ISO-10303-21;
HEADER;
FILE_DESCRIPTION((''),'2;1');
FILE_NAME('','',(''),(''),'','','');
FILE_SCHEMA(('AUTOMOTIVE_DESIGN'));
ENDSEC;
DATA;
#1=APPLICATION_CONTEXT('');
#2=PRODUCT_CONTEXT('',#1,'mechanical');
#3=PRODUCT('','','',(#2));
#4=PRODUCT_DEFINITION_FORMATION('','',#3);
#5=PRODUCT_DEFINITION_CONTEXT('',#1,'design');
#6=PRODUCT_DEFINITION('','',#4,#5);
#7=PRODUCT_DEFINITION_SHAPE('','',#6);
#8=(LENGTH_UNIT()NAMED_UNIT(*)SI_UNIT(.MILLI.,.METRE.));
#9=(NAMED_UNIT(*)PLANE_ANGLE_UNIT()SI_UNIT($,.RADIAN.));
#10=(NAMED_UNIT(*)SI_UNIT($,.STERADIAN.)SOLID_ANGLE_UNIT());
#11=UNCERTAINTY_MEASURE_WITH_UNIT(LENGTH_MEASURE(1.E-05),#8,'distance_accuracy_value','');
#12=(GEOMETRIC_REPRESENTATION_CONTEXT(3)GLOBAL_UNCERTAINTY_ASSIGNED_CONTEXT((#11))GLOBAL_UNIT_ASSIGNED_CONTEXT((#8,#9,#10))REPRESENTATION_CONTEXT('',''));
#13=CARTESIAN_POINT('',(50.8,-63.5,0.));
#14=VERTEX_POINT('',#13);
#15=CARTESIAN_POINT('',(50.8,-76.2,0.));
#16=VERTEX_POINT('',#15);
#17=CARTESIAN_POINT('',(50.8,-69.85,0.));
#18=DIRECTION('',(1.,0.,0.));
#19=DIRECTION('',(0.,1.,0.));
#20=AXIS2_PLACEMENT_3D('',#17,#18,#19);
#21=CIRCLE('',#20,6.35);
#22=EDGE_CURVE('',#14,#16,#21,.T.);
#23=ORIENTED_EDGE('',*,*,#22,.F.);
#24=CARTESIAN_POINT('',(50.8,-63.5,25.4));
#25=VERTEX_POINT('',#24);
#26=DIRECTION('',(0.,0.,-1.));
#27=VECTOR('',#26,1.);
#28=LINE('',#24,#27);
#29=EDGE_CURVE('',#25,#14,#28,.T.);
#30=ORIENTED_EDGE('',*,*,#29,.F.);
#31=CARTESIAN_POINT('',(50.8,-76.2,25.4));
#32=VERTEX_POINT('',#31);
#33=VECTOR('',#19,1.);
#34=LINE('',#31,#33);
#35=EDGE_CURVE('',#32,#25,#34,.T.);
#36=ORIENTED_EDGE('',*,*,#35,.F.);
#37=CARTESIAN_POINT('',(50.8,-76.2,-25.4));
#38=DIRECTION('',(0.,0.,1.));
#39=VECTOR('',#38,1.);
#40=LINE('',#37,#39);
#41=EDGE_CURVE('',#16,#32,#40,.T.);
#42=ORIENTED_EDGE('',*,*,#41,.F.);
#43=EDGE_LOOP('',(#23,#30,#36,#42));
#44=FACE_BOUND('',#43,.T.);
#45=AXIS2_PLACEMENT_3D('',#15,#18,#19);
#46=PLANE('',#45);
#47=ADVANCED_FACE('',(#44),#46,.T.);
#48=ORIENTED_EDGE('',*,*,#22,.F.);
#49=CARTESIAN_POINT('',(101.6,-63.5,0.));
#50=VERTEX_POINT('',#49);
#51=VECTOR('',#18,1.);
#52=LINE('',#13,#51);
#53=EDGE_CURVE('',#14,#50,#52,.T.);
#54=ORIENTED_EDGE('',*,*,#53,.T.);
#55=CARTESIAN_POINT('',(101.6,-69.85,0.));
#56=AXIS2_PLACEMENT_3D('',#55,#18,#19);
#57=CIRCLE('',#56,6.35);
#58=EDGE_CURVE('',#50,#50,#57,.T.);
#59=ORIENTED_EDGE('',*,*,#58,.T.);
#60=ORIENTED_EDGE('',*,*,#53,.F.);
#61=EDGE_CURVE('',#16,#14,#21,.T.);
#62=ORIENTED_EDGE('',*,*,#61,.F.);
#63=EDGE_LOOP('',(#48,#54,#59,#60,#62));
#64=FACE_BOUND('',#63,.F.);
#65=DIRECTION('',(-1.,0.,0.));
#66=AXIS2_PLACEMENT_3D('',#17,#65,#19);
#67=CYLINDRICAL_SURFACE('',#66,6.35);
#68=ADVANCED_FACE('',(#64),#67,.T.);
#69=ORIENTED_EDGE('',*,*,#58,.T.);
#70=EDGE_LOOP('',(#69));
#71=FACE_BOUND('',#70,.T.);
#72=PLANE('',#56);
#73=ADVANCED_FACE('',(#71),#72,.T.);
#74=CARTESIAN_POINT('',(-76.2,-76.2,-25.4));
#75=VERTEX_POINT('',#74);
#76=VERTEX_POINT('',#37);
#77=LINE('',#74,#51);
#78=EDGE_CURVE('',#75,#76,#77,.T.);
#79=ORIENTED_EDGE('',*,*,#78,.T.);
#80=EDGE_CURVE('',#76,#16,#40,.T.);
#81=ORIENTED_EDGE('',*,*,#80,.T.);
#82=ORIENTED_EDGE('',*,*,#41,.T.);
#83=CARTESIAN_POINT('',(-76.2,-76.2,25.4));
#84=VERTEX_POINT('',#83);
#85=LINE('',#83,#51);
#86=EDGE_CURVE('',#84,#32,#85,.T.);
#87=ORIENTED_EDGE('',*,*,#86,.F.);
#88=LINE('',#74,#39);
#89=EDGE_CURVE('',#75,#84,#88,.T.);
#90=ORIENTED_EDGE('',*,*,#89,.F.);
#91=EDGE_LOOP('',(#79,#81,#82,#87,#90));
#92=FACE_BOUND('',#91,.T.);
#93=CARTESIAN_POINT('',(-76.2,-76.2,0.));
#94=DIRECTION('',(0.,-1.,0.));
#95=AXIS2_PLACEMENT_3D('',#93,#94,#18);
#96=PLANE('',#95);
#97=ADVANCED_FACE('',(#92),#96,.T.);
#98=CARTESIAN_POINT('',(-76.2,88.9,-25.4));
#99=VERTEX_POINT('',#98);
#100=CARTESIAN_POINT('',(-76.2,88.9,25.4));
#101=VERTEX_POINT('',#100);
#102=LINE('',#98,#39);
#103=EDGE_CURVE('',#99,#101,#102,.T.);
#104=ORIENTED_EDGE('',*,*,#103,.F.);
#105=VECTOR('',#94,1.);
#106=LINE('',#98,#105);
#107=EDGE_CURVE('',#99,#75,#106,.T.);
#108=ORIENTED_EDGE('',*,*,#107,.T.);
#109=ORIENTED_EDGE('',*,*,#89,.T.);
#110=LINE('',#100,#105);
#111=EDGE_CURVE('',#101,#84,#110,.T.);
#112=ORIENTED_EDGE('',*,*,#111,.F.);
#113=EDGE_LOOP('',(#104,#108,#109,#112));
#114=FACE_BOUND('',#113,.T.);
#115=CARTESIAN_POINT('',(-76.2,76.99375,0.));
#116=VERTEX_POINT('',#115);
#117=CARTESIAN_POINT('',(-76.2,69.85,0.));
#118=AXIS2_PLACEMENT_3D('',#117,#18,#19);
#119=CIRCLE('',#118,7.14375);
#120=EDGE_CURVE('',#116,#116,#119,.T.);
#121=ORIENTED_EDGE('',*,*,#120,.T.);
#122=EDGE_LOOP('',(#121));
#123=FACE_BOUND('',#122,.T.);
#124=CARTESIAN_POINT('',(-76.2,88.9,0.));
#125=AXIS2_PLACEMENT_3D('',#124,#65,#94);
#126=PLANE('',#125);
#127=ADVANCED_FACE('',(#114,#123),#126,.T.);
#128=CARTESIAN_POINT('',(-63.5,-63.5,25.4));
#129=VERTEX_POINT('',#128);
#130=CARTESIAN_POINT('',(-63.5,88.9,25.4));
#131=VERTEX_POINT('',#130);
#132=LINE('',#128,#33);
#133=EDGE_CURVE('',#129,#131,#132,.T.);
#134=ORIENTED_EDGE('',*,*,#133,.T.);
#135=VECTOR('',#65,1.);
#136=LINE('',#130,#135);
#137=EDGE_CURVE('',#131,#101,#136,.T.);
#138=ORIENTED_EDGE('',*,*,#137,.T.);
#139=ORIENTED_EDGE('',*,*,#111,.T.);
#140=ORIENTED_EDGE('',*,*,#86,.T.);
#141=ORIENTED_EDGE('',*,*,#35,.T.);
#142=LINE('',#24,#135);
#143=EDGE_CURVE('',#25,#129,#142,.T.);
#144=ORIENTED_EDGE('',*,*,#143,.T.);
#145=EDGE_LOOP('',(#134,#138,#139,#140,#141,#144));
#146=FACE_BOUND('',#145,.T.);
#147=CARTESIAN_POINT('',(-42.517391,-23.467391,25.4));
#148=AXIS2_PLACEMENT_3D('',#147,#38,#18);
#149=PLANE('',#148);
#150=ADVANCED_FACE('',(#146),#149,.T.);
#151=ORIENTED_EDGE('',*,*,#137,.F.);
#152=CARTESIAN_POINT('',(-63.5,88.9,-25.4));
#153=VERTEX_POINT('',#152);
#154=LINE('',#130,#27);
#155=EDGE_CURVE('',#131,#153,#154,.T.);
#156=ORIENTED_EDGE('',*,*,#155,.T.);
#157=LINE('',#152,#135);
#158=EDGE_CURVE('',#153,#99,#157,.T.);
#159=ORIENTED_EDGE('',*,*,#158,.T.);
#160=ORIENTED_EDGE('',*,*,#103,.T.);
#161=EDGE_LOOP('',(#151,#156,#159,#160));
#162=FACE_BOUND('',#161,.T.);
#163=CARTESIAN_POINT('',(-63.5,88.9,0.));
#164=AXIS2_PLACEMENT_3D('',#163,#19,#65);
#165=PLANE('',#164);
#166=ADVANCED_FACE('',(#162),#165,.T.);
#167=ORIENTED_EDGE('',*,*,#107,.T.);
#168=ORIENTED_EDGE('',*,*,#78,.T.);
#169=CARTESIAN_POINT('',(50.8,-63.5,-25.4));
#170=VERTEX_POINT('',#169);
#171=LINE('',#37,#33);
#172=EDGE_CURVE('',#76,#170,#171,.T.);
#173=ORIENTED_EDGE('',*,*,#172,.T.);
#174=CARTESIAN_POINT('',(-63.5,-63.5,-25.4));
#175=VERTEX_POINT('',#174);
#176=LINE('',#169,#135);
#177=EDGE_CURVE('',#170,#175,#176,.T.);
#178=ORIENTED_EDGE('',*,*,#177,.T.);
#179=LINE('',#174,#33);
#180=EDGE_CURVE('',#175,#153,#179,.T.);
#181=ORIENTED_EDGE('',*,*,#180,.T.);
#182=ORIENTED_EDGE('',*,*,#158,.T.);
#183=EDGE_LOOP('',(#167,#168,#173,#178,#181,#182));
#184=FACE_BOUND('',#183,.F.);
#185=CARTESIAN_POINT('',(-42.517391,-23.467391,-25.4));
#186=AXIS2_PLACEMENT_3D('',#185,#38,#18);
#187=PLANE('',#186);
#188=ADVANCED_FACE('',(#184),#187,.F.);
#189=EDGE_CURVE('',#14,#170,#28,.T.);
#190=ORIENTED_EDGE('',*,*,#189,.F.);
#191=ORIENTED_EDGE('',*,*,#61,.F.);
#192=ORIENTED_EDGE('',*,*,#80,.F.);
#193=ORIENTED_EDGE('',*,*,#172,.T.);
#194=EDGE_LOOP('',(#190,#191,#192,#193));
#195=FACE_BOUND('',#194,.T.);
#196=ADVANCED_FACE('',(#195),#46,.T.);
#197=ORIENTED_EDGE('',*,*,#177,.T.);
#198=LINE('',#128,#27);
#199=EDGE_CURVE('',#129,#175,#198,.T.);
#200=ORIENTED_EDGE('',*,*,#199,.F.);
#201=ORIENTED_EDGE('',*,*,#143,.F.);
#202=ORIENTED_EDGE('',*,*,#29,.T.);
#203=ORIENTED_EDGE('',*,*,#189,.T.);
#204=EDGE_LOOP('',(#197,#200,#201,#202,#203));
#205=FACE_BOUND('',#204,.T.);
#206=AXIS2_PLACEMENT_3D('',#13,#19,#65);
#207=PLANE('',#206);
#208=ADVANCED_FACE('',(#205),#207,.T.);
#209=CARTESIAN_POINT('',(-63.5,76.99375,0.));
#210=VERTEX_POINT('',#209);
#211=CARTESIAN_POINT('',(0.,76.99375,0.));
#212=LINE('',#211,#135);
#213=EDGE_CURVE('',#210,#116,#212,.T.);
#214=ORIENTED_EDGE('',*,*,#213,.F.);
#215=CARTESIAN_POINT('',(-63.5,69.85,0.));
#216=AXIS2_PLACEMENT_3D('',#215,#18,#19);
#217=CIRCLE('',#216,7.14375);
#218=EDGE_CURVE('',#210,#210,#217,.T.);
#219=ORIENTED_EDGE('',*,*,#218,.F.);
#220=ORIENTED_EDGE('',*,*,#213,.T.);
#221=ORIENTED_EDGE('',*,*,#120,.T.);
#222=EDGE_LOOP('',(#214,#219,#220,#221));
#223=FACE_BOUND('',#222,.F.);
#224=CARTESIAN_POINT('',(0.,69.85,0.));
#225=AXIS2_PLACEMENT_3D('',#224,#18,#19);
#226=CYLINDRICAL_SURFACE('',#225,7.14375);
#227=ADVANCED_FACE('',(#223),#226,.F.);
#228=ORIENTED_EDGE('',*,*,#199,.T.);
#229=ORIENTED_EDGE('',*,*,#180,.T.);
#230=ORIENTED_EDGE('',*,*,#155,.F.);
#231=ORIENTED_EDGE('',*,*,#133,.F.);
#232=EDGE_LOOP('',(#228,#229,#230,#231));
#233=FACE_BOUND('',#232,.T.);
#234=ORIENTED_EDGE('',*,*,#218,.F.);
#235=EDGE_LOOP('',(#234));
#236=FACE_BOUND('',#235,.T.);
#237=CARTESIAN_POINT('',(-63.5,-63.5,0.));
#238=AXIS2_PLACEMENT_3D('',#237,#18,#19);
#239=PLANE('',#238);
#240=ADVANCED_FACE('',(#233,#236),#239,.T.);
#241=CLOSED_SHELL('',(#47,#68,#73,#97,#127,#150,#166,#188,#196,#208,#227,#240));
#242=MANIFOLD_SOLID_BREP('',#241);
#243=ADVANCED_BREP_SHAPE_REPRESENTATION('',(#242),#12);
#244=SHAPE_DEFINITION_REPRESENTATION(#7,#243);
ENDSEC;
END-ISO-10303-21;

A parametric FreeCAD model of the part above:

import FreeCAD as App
import Part
import Sketcher

V = App.Vector
Q = App.Units.Quantity

doc = App.newDocument("Part")
body = doc.addObject("PartDesign::Body", "Body")

sketch1 = body.newObject("Sketcher::SketchObject", "Sketch")
sketch1.AttachmentSupport = (doc.getObject("XY_Plane"), [""])
sketch1.MapMode = "FlatFace"
sketch1.addGeometry([
    Part.LineSegment(V(-63.5, 88.9, 0), V(-76.2, 88.9, 0)),
    Part.LineSegment(V(-76.2, 88.9, 0), V(-76.2, -76.2, 0)),
    Part.LineSegment(V(-76.2, -76.2, 0), V(50.8, -76.2, 0)),
    Part.LineSegment(V(50.8, -76.2, 0), V(50.8, -63.5, 0)),
    Part.LineSegment(V(50.8, -63.5, 0), V(-63.5, -63.5, 0)),
    Part.LineSegment(V(-63.5, -63.5, 0), V(-63.5, 88.9, 0)),
], False)
sketch1.addConstraint([
    Sketcher.Constraint("Coincident", 0, 2, 1, 1),
    Sketcher.Constraint("Coincident", 1, 2, 2, 1),
    Sketcher.Constraint("Coincident", 2, 2, 3, 1),
    Sketcher.Constraint("Coincident", 3, 2, 4, 1),
    Sketcher.Constraint("Coincident", 4, 2, 5, 1),
    Sketcher.Constraint("Coincident", 5, 2, 0, 1),
    Sketcher.Constraint("Horizontal", 0),
    Sketcher.Constraint("Vertical", 1),
    Sketcher.Constraint("Horizontal", 2),
    Sketcher.Constraint("Vertical", 3),
    Sketcher.Constraint("Horizontal", 4),
    Sketcher.Constraint("Vertical", 5),
    Sketcher.Constraint("Equal", 0, 3),
    Sketcher.Constraint("DistanceX", 2, 1, 2, 2, Q("5 in")),
    Sketcher.Constraint("DistanceY", 5, 1, 5, 2, Q("6 in")),
    Sketcher.Constraint("DistanceX", 0, 2, 0, 1, Q("0.5 in")),
    Sketcher.Constraint("DistanceX", 0, 2, -1, 1, Q("3 in")),
    Sketcher.Constraint("DistanceY", 1, 2, -1, 1, Q("3 in")),
])
pad1 = body.newObject("PartDesign::Pad", "Pad")
pad1.Profile = sketch1
pad1.Length = Q("2 in")
pad1.Midplane = True

sketch2 = body.newObject("Sketcher::SketchObject", "Sketch001")
sketch2.AttachmentSupport = (doc.getObject("YZ_Plane"), [""])
sketch2.MapMode = "FlatFace"
sketch2.addGeometry(Part.Circle(V(69.85, 0, 0), V(0, 0, 1), 7.14375), False)
sketch2.addConstraint([
    Sketcher.Constraint("PointOnObject", 0, 3, -1),
    Sketcher.Constraint("Diameter", 0, Q("0.5625 in")),
    Sketcher.Constraint("DistanceX", -1, 1, 0, 3, Q("2.75 in")),
])
pocket1 = body.newObject("PartDesign::Pocket", "Pocket")
pocket1.Profile = sketch2
pocket1.Type = "ThroughAll"

sketch3 = body.newObject("Sketcher::SketchObject", "Sketch002")
sketch3.AttachmentSupport = (doc.getObject("YZ_Plane"), [""])
sketch3.MapMode = "FlatFace"
sketch3.AttachmentOffset = App.Placement(V(0, 0, 2 * 25.4), App.Rotation())
sketch3.addGeometry(Part.Circle(V(-69.85, 0, 0), V(0, 0, 1), 6.35), False)
sketch3.addConstraint([
    Sketcher.Constraint("PointOnObject", 0, 3, -1),
    Sketcher.Constraint("Diameter", 0, Q("0.5 in")),
    Sketcher.Constraint("DistanceX", 0, 3, -1, 1, Q("2.75 in")),
])
pad2 = body.newObject("PartDesign::Pad", "Pad001")
pad2.Profile = sketch3
pad2.Length = Q("2 in")

doc.recompute()
